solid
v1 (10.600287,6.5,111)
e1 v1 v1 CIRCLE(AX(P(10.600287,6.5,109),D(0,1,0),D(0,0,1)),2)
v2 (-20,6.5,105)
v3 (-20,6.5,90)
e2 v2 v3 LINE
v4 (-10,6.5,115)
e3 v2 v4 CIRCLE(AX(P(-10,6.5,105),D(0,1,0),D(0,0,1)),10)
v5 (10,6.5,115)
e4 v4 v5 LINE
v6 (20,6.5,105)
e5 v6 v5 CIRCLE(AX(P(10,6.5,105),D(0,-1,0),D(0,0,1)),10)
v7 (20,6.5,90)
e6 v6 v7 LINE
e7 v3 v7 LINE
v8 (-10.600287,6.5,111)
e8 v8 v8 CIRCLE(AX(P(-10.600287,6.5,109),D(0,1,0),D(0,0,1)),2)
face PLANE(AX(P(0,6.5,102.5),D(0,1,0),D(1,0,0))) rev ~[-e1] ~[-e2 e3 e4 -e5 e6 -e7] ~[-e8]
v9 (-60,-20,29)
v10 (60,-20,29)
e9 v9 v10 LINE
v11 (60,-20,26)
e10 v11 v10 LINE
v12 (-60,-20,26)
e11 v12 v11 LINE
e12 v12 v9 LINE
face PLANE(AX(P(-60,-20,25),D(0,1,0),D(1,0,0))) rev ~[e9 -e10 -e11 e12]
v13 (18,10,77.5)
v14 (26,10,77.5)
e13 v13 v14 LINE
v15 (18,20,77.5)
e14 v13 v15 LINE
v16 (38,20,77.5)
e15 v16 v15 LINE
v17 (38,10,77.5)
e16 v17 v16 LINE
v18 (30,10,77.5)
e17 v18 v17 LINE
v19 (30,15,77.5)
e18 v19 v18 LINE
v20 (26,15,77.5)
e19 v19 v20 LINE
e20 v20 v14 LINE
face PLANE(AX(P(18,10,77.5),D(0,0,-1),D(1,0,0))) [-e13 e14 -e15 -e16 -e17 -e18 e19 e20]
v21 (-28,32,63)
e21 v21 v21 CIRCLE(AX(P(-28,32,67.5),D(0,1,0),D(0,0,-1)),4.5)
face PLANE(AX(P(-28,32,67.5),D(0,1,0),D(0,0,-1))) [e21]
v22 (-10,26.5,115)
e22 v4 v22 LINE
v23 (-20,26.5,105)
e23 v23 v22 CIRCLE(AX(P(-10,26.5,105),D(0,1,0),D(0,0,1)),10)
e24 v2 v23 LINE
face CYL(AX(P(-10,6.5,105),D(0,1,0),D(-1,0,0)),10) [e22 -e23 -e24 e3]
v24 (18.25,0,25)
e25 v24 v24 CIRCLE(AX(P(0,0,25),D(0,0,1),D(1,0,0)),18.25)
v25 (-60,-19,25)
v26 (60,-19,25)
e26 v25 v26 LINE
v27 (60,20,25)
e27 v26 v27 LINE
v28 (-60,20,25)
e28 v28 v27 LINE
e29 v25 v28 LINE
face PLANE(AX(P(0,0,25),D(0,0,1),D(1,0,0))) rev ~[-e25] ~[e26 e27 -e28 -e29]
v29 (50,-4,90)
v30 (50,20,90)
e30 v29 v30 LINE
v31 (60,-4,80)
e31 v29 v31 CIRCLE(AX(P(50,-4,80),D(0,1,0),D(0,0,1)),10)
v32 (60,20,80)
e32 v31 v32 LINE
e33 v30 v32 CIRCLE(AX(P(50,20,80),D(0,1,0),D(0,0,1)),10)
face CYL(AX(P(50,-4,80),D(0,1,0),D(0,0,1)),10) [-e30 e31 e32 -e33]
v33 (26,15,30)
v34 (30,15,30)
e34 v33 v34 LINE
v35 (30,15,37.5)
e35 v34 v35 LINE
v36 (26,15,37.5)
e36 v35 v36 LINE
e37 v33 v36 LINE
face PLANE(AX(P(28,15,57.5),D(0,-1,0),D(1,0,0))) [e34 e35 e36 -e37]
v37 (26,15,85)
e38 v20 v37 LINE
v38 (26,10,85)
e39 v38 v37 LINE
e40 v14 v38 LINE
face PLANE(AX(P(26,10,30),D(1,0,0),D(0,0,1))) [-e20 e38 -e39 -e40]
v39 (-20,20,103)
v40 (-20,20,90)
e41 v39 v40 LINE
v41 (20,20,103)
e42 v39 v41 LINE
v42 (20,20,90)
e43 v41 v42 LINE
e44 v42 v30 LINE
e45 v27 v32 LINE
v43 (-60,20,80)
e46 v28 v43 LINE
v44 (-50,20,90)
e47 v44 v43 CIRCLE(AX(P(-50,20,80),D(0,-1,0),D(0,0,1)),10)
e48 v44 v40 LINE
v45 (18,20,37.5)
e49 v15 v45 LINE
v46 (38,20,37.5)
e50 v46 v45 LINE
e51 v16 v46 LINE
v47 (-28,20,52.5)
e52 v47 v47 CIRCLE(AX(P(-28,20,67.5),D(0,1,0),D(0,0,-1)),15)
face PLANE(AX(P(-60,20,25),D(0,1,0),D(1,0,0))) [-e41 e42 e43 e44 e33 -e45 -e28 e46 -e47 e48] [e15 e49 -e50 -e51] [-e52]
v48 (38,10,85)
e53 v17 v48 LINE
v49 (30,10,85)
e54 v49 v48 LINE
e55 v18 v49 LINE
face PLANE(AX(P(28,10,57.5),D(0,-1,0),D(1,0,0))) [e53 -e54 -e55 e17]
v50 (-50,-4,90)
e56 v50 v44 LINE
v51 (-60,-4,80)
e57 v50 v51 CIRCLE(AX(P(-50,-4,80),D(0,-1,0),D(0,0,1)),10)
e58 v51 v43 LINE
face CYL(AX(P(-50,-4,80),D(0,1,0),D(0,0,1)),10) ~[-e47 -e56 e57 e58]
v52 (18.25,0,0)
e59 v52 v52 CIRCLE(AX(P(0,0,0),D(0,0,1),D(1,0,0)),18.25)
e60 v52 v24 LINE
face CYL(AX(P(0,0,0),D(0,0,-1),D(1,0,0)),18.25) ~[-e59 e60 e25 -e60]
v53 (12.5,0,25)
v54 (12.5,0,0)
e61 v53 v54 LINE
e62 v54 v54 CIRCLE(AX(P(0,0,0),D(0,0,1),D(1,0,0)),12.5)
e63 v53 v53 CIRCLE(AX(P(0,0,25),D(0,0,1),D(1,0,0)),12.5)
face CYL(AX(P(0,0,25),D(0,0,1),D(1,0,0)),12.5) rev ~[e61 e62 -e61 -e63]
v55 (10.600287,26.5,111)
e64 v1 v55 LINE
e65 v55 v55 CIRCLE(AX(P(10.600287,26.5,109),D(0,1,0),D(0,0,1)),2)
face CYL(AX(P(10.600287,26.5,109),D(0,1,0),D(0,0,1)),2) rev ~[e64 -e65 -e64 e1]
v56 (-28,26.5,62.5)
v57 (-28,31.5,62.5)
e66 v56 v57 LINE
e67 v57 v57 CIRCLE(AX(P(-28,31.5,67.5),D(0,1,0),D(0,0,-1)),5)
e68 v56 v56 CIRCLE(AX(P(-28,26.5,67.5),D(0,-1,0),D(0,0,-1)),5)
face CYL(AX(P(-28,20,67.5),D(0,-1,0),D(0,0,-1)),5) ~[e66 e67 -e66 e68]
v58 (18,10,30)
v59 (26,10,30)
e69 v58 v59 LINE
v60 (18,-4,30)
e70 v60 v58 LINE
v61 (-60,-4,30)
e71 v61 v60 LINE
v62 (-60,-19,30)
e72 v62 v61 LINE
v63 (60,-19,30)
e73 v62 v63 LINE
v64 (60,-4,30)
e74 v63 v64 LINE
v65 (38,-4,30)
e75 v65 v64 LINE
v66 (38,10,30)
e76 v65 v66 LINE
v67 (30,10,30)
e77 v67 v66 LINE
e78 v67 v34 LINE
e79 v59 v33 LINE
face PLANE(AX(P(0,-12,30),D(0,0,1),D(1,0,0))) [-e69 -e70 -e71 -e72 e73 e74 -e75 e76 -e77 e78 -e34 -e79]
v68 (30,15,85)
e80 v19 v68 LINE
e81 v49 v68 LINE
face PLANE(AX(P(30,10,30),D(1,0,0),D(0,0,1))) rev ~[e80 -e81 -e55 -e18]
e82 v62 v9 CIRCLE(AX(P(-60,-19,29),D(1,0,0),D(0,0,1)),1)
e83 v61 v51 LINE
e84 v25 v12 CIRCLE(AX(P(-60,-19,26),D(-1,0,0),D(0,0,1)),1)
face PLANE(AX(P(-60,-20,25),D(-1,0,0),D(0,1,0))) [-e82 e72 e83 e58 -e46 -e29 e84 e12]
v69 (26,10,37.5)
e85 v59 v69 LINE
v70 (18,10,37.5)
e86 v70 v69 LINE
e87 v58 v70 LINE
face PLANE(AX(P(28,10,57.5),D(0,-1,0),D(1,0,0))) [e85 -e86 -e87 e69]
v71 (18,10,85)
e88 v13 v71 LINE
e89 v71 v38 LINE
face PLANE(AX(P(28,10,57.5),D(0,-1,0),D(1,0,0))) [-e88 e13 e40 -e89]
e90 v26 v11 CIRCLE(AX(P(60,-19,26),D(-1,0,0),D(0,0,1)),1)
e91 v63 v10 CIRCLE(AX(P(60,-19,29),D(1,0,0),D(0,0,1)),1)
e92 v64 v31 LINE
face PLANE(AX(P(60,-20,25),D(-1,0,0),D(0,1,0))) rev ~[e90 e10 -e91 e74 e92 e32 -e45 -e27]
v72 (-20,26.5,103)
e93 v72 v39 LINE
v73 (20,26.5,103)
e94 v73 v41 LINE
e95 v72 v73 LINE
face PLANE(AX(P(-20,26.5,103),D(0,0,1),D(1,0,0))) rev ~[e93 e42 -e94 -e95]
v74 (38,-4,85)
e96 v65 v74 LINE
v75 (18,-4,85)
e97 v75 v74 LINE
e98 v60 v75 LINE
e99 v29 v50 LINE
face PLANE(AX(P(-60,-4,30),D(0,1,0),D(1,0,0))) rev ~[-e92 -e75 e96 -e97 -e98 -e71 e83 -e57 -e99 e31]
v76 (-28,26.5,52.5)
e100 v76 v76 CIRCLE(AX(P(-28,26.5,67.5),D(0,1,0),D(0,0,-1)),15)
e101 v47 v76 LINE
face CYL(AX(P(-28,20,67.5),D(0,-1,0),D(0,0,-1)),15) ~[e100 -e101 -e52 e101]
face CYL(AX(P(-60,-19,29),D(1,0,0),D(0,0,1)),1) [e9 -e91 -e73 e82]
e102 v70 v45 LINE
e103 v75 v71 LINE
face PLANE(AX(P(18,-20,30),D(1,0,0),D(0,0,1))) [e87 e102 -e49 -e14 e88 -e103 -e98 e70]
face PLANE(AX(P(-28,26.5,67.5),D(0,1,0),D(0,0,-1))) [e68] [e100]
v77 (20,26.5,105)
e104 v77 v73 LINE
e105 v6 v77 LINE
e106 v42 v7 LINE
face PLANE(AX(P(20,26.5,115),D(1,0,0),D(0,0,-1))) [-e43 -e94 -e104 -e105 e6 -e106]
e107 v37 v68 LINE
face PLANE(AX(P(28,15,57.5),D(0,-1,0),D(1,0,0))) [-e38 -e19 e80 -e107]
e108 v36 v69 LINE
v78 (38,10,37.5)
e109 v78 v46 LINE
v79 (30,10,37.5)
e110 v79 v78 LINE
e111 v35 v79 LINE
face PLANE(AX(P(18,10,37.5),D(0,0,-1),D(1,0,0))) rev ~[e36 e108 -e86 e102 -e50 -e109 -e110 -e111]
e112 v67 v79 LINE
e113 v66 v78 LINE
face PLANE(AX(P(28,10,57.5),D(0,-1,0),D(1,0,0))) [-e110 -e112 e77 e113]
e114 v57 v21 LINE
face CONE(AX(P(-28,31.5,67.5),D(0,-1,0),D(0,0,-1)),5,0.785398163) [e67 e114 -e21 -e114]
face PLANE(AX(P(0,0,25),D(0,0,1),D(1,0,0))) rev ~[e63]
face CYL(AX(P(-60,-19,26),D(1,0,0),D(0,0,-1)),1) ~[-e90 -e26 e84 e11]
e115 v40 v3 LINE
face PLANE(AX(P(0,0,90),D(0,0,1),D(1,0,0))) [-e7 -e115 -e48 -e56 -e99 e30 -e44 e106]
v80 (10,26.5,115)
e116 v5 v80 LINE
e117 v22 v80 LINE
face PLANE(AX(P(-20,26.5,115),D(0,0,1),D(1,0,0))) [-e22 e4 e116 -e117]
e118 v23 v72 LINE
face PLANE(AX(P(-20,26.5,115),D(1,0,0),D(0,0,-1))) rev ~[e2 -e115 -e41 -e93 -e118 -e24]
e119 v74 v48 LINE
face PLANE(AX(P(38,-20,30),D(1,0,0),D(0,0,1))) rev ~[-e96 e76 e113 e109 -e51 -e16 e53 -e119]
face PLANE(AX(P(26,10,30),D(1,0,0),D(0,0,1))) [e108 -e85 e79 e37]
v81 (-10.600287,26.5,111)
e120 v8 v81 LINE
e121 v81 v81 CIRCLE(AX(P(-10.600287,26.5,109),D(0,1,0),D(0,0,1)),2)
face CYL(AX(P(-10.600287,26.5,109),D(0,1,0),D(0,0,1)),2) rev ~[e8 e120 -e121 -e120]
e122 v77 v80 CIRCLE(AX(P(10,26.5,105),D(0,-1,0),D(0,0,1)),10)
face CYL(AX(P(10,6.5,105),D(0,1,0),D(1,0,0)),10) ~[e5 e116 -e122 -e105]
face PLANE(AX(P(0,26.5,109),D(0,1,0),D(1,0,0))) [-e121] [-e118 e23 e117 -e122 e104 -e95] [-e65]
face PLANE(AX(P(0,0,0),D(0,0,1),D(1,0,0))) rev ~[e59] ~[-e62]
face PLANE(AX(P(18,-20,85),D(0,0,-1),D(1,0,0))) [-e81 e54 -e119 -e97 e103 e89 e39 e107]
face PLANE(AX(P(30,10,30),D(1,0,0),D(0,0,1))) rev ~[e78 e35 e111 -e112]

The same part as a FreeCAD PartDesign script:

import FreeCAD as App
import Part
import Sketcher
from FreeCAD import Vector


def edges_at(feature, points):
    """Names of the edges that pass closest to the given points."""
    edges = feature.Shape.Edges
    near = lambda p: min(range(len(edges)), key=lambda i: edges[i].distToShape(Part.Vertex(*p))[0])
    return sorted({f"Edge{near(p) + 1}" for p in points})

doc = App.newDocument("Part")
body = doc.addObject("PartDesign::Body", "Body")

# Sketch on XY plane
sketch1 = doc.addObject("Sketcher::SketchObject", "Sketch")
body.addObject(sketch1)
sketch1.AttachmentSupport = (doc.XY_Plane, [""])
sketch1.MapMode = "FlatFace"
sketch1.addGeometry(Part.Circle(Vector(0, 0, 0), Vector(0, 0, 1), 18), False)
sketch1.addConstraint([
    Sketcher.Constraint("Coincident", 0, 3, -1, 1),
    Sketcher.Constraint("Diameter", 0, 36.5),
])
pad1 = doc.addObject("PartDesign::Pad", "Pad")
body.addObject(pad1)
pad1.Profile = sketch1
pad1.Length = 25

# Sketch on XY plane
sketch2 = doc.addObject("Sketcher::SketchObject", "Sketch001")
body.addObject(sketch2)
sketch2.AttachmentSupport = (doc.XY_Plane, [""])
sketch2.MapMode = "FlatFace"
sketch2.AttachmentOffset = App.Placement(Vector(0, 0, 25), App.Rotation())
sketch2.addGeometry(Part.Circle(Vector(0, 0, 0), Vector(0, 0, 1), 12), False)
sketch2.addConstraint([
    Sketcher.Constraint("Coincident", 0, 3, -1, 1),
    Sketcher.Constraint("Diameter", 0, 25.0),
])
pocket1 = doc.addObject("PartDesign::Pocket", "Pocket")
body.addObject(pocket1)
pocket1.Profile = sketch2
pocket1.Length = 25

# Sketch on XY plane
sketch3 = doc.addObject("Sketcher::SketchObject", "Sketch002")
body.addObject(sketch3)
sketch3.AttachmentSupport = (doc.XY_Plane, [""])
sketch3.MapMode = "FlatFace"
sketch3.AttachmentOffset = App.Placement(Vector(0, 0, 25), App.Rotation())
sketch3.addGeometry([
    Part.LineSegment(Vector(-60, 20, 0), Vector(-60, -20, 0)),
    Part.LineSegment(Vector(-60, -20, 0), Vector(60, -20, 0)),
    Part.LineSegment(Vector(60, -20, 0), Vector(60, 20, 0)),
    Part.LineSegment(Vector(60, 20, 0), Vector(-60, 20, 0)),
], False)
sketch3.addConstraint([
    Sketcher.Constraint("Coincident", 0, 2, 1, 1),
    Sketcher.Constraint("Coincident", 1, 2, 2, 1),
    Sketcher.Constraint("Coincident", 2, 2, 3, 1),
    Sketcher.Constraint("Coincident", 3, 2, 0, 1),
    Sketcher.Constraint("Vertical", 0),
    Sketcher.Constraint("Horizontal", 1),
    Sketcher.Constraint("Vertical", 2),
    Sketcher.Constraint("Horizontal", 3),
    Sketcher.Constraint("Symmetric", 0, 2, 2, 2, -1, 1),
    Sketcher.Constraint("DistanceX", 1, 1, 1, 2, 120.0),
    Sketcher.Constraint("DistanceY", 0, 2, 0, 1, 40.0),
])
pad2 = doc.addObject("PartDesign::Pad", "Pad001")
body.addObject(pad2)
pad2.Profile = sketch3
pad2.Length = 65

# Sketch on XZ plane
sketch4 = doc.addObject("Sketcher::SketchObject", "Sketch003")
body.addObject(sketch4)
sketch4.AttachmentSupport = (doc.XZ_Plane, [""])
sketch4.MapMode = "FlatFace"
sketch4.AttachmentOffset = App.Placement(Vector(0, 0, 20), App.Rotation())
sketch4.addGeometry([
    Part.LineSegment(Vector(18, 85, 0), Vector(18, 30, 0)),
    Part.LineSegment(Vector(18, 30, 0), Vector(38, 30, 0)),
    Part.LineSegment(Vector(38, 30, 0), Vector(38, 85, 0)),
    Part.LineSegment(Vector(38, 85, 0), Vector(18, 85, 0)),
], False)
sketch4.addConstraint([
    Sketcher.Constraint("Coincident", 0, 2, 1, 1),
    Sketcher.Constraint("Coincident", 1, 2, 2, 1),
    Sketcher.Constraint("Coincident", 2, 2, 3, 1),
    Sketcher.Constraint("Coincident", 3, 2, 0, 1),
    Sketcher.Constraint("Vertical", 0),
    Sketcher.Constraint("Horizontal", 1),
    Sketcher.Constraint("Vertical", 2),
    Sketcher.Constraint("Horizontal", 3),
    Sketcher.Constraint("DistanceX", 1, 1, 1, 2, 20.0),
    Sketcher.Constraint("DistanceY", 0, 2, 0, 1, 55.0),
    Sketcher.Constraint("DistanceX", -1, 1, 0, 2, 18.0),
    Sketcher.Constraint("DistanceY", -1, 1, 0, 2, 30.0),
])
pocket2 = doc.addObject("PartDesign::Pocket", "Pocket001")
body.addObject(pocket2)
pocket2.Profile = sketch4
pocket2.Length = 30

# Sketch on XZ plane
sketch5 = doc.addObject("Sketcher::SketchObject", "Sketch004")
body.addObject(sketch5)
sketch5.AttachmentSupport = (doc.XZ_Plane, [""])
sketch5.MapMode = "FlatFace"
sketch5.AttachmentOffset = App.Placement(Vector(0, 0, -10), App.Rotation())
sketch5.addGeometry([
    Part.LineSegment(Vector(18, 78, 0), Vector(18, 38, 0)),
    Part.LineSegment(Vector(18, 38, 0), Vector(38, 38, 0)),
    Part.LineSegment(Vector(38, 38, 0), Vector(38, 78, 0)),
    Part.LineSegment(Vector(38, 78, 0), Vector(18, 78, 0)),
], False)
sketch5.addConstraint([
    Sketcher.Constraint("Coincident", 0, 2, 1, 1),
    Sketcher.Constraint("Coincident", 1, 2, 2, 1),
    Sketcher.Constraint("Coincident", 2, 2, 3, 1),
    Sketcher.Constraint("Coincident", 3, 2, 0, 1),
    Sketcher.Constraint("Vertical", 0),
    Sketcher.Constraint("Horizontal", 1),
    Sketcher.Constraint("Vertical", 2),
    Sketcher.Constraint("Horizontal", 3),
    Sketcher.Constraint("DistanceX", 1, 1, 1, 2, 20.0),
    Sketcher.Constraint("DistanceY", 0, 2, 0, 1, 40.0),
    Sketcher.Constraint("DistanceX", -1, 1, 0, 2, 18.0),
    Sketcher.Constraint("DistanceY", -1, 1, 0, 2, 37.5),
])
pocket3 = doc.addObject("PartDesign::Pocket", "Pocket002")
body.addObject(pocket3)
pocket3.Profile = sketch5
pocket3.Length = 30

# Sketch on XZ plane
sketch6 = doc.addObject("Sketcher::SketchObject", "Sketch005")
body.addObject(sketch6)
sketch6.AttachmentSupport = (doc.XZ_Plane, [""])
sketch6.MapMode = "FlatFace"
sketch6.AttachmentOffset = App.Placement(Vector(0, 0, -10), App.Rotation())
sketch6.addGeometry([
    Part.LineSegment(Vector(26, 85, 0), Vector(26, 30, 0)),
    Part.LineSegment(Vector(26, 30, 0), Vector(30, 30, 0)),
    Part.LineSegment(Vector(30, 30, 0), Vector(30, 85, 0)),
    Part.LineSegment(Vector(30, 85, 0), Vector(26, 85, 0)),
], False)
sketch6.addConstraint([
    Sketcher.Constraint("Coincident", 0, 2, 1, 1),
    Sketcher.Constraint("Coincident", 1, 2, 2, 1),
    Sketcher.Constraint("Coincident", 2, 2, 3, 1),
    Sketcher.Constraint("Coincident", 3, 2, 0, 1),
    Sketcher.Constraint("Vertical", 0),
    Sketcher.Constraint("Horizontal", 1),
    Sketcher.Constraint("Vertical", 2),
    Sketcher.Constraint("Horizontal", 3),
    Sketcher.Constraint("DistanceX", 1, 1, 1, 2, 4.0),
    Sketcher.Constraint("DistanceY", 0, 2, 0, 1, 55.0),
    Sketcher.Constraint("DistanceX", -1, 1, 0, 2, 26.0),
    Sketcher.Constraint("DistanceY", -1, 1, 0, 2, 30.0),
])
pocket4 = doc.addObject("PartDesign::Pocket", "Pocket003")
body.addObject(pocket4)
pocket4.Profile = sketch6
pocket4.Length = 5

# Sketch on XZ plane
sketch7 = doc.addObject("Sketcher::SketchObject", "Sketch006")
body.addObject(sketch7)
sketch7.AttachmentSupport = (doc.XZ_Plane, [""])
sketch7.MapMode = "FlatFace"
sketch7.AttachmentOffset = App.Placement(Vector(0, 0, -20), App.Rotation())
sketch7.addGeometry(Part.Circle(Vector(-28, 68, 0), Vector(0, 0, 1), 5), False)
sketch7.addConstraint([
    Sketcher.Constraint("Diameter", 0, 10.0),
    Sketcher.Constraint("DistanceX", 0, 3, -1, 1, 28.0),
    Sketcher.Constraint("DistanceY", -1, 1, 0, 3, 67.5),
])
pad3 = doc.addObject("PartDesign::Pad", "Pad002")
body.addObject(pad3)
pad3.Profile = sketch7
pad3.Length = 12
pad3.Reversed = True

# Sketch on XY plane
sketch8 = doc.addObject("Sketcher::SketchObject", "Sketch007")
body.addObject(sketch8)
sketch8.AttachmentSupport = (doc.XY_Plane, [""])
sketch8.MapMode = "FlatFace"
sketch8.AttachmentOffset = App.Placement(Vector(0, 0, 90), App.Rotation())
sketch8.addGeometry([
    Part.LineSegment(Vector(-60, -4, 0), Vector(-60, -20, 0)),
    Part.LineSegment(Vector(-60, -20, 0), Vector(60, -20, 0)),
    Part.LineSegment(Vector(60, -20, 0), Vector(60, -4, 0)),
    Part.LineSegment(Vector(60, -4, 0), Vector(-60, -4, 0)),
], False)
sketch8.addConstraint([
    Sketcher.Constraint("Coincident", 0, 2, 1, 1),
    Sketcher.Constraint("Coincident", 1, 2, 2, 1),
    Sketcher.Constraint("Coincident", 2, 2, 3, 1),
    Sketcher.Constraint("Coincident", 3, 2, 0, 1),
    Sketcher.Constraint("Vertical", 0),
    Sketcher.Constraint("Horizontal", 1),
    Sketcher.Constraint("Vertical", 2),
    Sketcher.Constraint("Horizontal", 3),
    Sketcher.Constraint("DistanceX", 1, 1, 1, 2, 120.0),
    Sketcher.Constraint("DistanceY", 0, 2, 0, 1, 16.0),
    Sketcher.Constraint("DistanceX", 0, 2, -1, 1, 60.0),
    Sketcher.Constraint("DistanceY", 0, 2, -1, 1, 20.0),
])
pocket5 = doc.addObject("PartDesign::Pocket", "Pocket004")
body.addObject(pocket5)
pocket5.Profile = sketch8
pocket5.Type = "TwoLengths"
pocket5.Length = 113.800709
pocket5.Length2 = 60
pocket5.Reversed = True

# Sketch on XZ plane
sketch9 = doc.addObject("Sketcher::SketchObject", "Sketch008")
body.addObject(sketch9)
sketch9.AttachmentSupport = (doc.XZ_Plane, [""])
sketch9.MapMode = "FlatFace"
sketch9.AttachmentOffset = App.Placement(Vector(0, 0, -20), App.Rotation())
sketch9.addGeometry([
    Part.LineSegment(Vector(-20, 90, 0), Vector(-20, 115, 0)),
    Part.LineSegment(Vector(-20, 115, 0), Vector(20, 115, 0)),
    Part.LineSegment(Vector(20, 115, 0), Vector(20, 90, 0)),
    Part.LineSegment(Vector(20, 90, 0), Vector(-20, 90, 0)),
], False)
sketch9.addConstraint([
    Sketcher.Constraint("Coincident", 0, 2, 1, 1),
    Sketcher.Constraint("Coincident", 1, 2, 2, 1),
    Sketcher.Constraint("Coincident", 2, 2, 3, 1),
    Sketcher.Constraint("Coincident", 3, 2, 0, 1),
    Sketcher.Constraint("Vertical", 0),
    Sketcher.Constraint("Horizontal", 1),
    Sketcher.Constraint("Vertical", 2),
    Sketcher.Constraint("Horizontal", 3),
    Sketcher.Constraint("DistanceX", 1, 1, 1, 2, 40.0),
    Sketcher.Constraint("DistanceY", 0, 1, 0, 2, 25.0),
    Sketcher.Constraint("DistanceX", 0, 2, -1, 1, 20.0),
    Sketcher.Constraint("DistanceY", -1, 1, 0, 2, 115.0),
])
pad4 = doc.addObject("PartDesign::Pad", "Pad003")
body.addObject(pad4)
pad4.Profile = sketch9
pad4.Length = 13.5

# Sketch on XZ plane
sketch10 = doc.addObject("Sketcher::SketchObject", "Sketch009")
body.addObject(sketch10)
sketch10.AttachmentSupport = (doc.XZ_Plane, [""])
sketch10.MapMode = "FlatFace"
sketch10.AttachmentOffset = App.Placement(Vector(0, 0, -20), App.Rotation())
sketch10.addGeometry([
    Part.Circle(Vector(-10.6, 109, 0), Vector(0, 0, 1), 2),
    Part.Circle(Vector(10.6, 109, 0), Vector(0, 0, 1), 2),
], False)
sketch10.addConstraint([
    Sketcher.Constraint("Equal", 0, 1),
    Sketcher.Constraint("Symmetric", 0, 3, 1, 3, -2),
    Sketcher.Constraint("Diameter", 0, 4.0),
    Sketcher.Constraint("DistanceY", -1, 1, 0, 3, 109.0),
    Sketcher.Constraint("DistanceX", 0, 3, -1, 1, 10.600287),
])
pocket6 = doc.addObject("PartDesign::Pocket", "Pocket005")
body.addObject(pocket6)
pocket6.Profile = sketch10
pocket6.Length = 30
pocket6.Reversed = True

# Sketch on XZ plane
sketch11 = doc.addObject("Sketcher::SketchObject", "Sketch010")
body.addObject(sketch11)
sketch11.AttachmentSupport = (doc.XZ_Plane, [""])
sketch11.MapMode = "FlatFace"
sketch11.AttachmentOffset = App.Placement(Vector(0, 0, -20), App.Rotation())
sketch11.addGeometry(Part.Circle(Vector(-28, 68, 0), Vector(0, 0, 1), 15), False)
sketch11.addConstraint([
    Sketcher.Constraint("Diameter", 0, 30.0),
    Sketcher.Constraint("DistanceX", 0, 3, -1, 1, 28.0),
    Sketcher.Constraint("DistanceY", -1, 1, 0, 3, 67.5),
])
pad5 = doc.addObject("PartDesign::Pad", "Pad004")
body.addObject(pad5)
pad5.Profile = sketch11
pad5.Length = 6.5
pad5.Reversed = True

# Sketch on XZ plane
sketch12 = doc.addObject("Sketcher::SketchObject", "Sketch011")
body.addObject(sketch12)
sketch12.AttachmentSupport = (doc.XZ_Plane, [""])
sketch12.MapMode = "FlatFace"
sketch12.AttachmentOffset = App.Placement(Vector(0, 0, -26.5), App.Rotation())
sketch12.addGeometry([
    Part.LineSegment(Vector(-20, 103, 0), Vector(-20, 115, 0)),  # 0
    Part.LineSegment(Vector(-20, 115, 0), Vector(20, 115, 0)),  # 1
    Part.LineSegment(Vector(20, 115, 0), Vector(20, 103, 0)),  # 2
    Part.LineSegment(Vector(20, 103, 0), Vector(-20, 103, 0)),  # 3
    Part.Circle(Vector(-10.6, 109, 0), Vector(0, 0, 1), 2),  # 4
    Part.Circle(Vector(10.6, 109, 0), Vector(0, 0, 1), 2),  # 5
], False)
sketch12.addConstraint([
    Sketcher.Constraint("Coincident", 0, 2, 1, 1),
    Sketcher.Constraint("Coincident", 1, 2, 2, 1),
    Sketcher.Constraint("Coincident", 2, 2, 3, 1),
    Sketcher.Constraint("Coincident", 3, 2, 0, 1),
    Sketcher.Constraint("Vertical", 0),
    Sketcher.Constraint("Horizontal", 1),
    Sketcher.Constraint("Vertical", 2),
    Sketcher.Constraint("Horizontal", 3),
    Sketcher.Constraint("Equal", 4, 5),
    Sketcher.Constraint("Symmetric", 4, 3, 5, 3, -2),
    Sketcher.Constraint("Diameter", 4, 4.0),
    Sketcher.Constraint("DistanceX", 1, 1, 1, 2, 40.0),
    Sketcher.Constraint("DistanceY", 0, 1, 0, 2, 12.0),
    Sketcher.Constraint("DistanceY", -1, 1, 4, 3, 109.0),
    Sketcher.Constraint("DistanceX", 0, 2, -1, 1, 20.0),
    Sketcher.Constraint("DistanceY", -1, 1, 0, 2, 115.0),
    Sketcher.Constraint("DistanceX", 4, 3, -1, 1, 10.600287),
])
pad6 = doc.addObject("PartDesign::Pad", "Pad005")
body.addObject(pad6)
pad6.Profile = sketch12
pad6.Length = 6.5
doc.recompute()

fillet = doc.addObject("PartDesign::Fillet", "Fillet")
body.addObject(fillet)
fillet.Base = (pad6, edges_at(pad6, [(-20, 16.5, 115), (20, 16.5, 115)]))
fillet.Radius = 10
doc.recompute()

fillet2 = doc.addObject("PartDesign::Fillet", "Fillet001")
body.addObject(fillet2)
fillet2.Base = (fillet, edges_at(fillet, [(60, 8, 90), (-60, 8, 90)]))
fillet2.Radius = 10
doc.recompute()

fillet3 = doc.addObject("PartDesign::Fillet", "Fillet002")
body.addObject(fillet3)
fillet3.Base = (fillet2, edges_at(fillet2, [(0, -20, 25), (0, -20, 30)]))
fillet3.Radius = 1
doc.recompute()

chamfer = doc.addObject("PartDesign::Chamfer", "Chamfer")
body.addObject(chamfer)
chamfer.Base = (fillet3, edges_at(fillet3, [(-28, 32, 72.5)]))
chamfer.Size = 0.5

doc.recompute()
